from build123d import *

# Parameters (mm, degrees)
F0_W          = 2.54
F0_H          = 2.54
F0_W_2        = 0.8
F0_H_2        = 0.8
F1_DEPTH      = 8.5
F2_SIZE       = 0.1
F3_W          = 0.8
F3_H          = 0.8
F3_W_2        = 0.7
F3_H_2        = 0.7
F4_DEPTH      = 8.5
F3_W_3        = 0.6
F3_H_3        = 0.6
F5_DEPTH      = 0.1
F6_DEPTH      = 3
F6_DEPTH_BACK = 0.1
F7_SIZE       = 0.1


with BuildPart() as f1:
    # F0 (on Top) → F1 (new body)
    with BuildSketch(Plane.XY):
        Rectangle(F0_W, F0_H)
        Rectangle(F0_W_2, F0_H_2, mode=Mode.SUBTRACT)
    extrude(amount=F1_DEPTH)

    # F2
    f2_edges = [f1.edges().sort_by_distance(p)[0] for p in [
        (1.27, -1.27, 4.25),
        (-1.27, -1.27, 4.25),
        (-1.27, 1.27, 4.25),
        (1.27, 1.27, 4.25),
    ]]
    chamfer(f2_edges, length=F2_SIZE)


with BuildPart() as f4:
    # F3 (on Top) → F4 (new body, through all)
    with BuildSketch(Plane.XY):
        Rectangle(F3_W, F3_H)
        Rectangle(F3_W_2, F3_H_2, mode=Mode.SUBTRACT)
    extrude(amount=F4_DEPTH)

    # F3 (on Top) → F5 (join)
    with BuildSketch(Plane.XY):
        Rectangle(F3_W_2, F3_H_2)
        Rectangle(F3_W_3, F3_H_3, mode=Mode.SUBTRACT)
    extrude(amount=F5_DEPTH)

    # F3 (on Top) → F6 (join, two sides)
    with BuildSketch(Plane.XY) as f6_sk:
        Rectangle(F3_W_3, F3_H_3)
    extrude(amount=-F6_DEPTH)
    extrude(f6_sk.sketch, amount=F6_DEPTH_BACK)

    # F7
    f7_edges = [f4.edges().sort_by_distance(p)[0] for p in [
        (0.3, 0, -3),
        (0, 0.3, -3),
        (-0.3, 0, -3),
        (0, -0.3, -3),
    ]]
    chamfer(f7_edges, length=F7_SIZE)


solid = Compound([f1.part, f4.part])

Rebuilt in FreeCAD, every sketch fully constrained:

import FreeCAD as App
import Part
import Sketcher

V = App.Vector


def edges_at(feature, points):
    """Names of the edges that pass closest to the given points."""
    edges = feature.Shape.Edges
    near = lambda p: min(range(len(edges)), key=lambda i: edges[i].distToShape(Part.Vertex(*p))[0])
    return sorted({f"Edge{near(p) + 1}" for p in points})

doc = App.newDocument("Part")
body = doc.addObject("PartDesign::Body", "Body")

# Sketch on XY plane
sketch1 = doc.addObject("Sketcher::SketchObject", "Sketch")
body.addObject(sketch1)
sketch1.AttachmentSupport = (doc.XY_Plane, [""])
sketch1.MapMode = "FlatFace"
sketch1.addGeometry(Part.LineSegment(V(-1.3, 1.3, 0), V(-1.3, -1.3, 0)), False)
sketch1.addGeometry(Part.LineSegment(V(-1.3, -1.3, 0), V(1.3, -1.3, 0)), False)
sketch1.addGeometry(Part.LineSegment(V(1.3, -1.3, 0), V(1.3, 1.3, 0)), False)
sketch1.addGeometry(Part.LineSegment(V(1.3, 1.3, 0), V(-1.3, 1.3, 0)), False)
sketch1.addGeometry(Part.LineSegment(V(0.4, -0.4, 0), V(-0.4, -0.4, 0)), False)
sketch1.addGeometry(Part.LineSegment(V(-0.4, -0.4, 0), V(-0.4, 0.4, 0)), False)
sketch1.addGeometry(Part.LineSegment(V(-0.4, 0.4, 0), V(0.4, 0.4, 0)), False)
sketch1.addGeometry(Part.LineSegment(V(0.4, 0.4, 0), V(0.4, -0.4, 0)), False)
sketch1.addConstraint(Sketcher.Constraint("Coincident", 0, 2, 1, 1))
sketch1.addConstraint(Sketcher.Constraint("Coincident", 1, 2, 2, 1))
sketch1.addConstraint(Sketcher.Constraint("Coincident", 2, 2, 3, 1))
sketch1.addConstraint(Sketcher.Constraint("Coincident", 3, 2, 0, 1))
sketch1.addConstraint(Sketcher.Constraint("Coincident", 4, 2, 5, 1))
sketch1.addConstraint(Sketcher.Constraint("Coincident", 5, 2, 6, 1))
sketch1.addConstraint(Sketcher.Constraint("Coincident", 6, 2, 7, 1))
sketch1.addConstraint(Sketcher.Constraint("Coincident", 7, 2, 4, 1))
sketch1.addConstraint(Sketcher.Constraint("Vertical", 0))
sketch1.addConstraint(Sketcher.Constraint("Horizontal", 1))
sketch1.addConstraint(Sketcher.Constraint("Vertical", 2))
sketch1.addConstraint(Sketcher.Constraint("Horizontal", 3))
sketch1.addConstraint(Sketcher.Constraint("Horizontal", 4))
sketch1.addConstraint(Sketcher.Constraint("Vertical", 5))
sketch1.addConstraint(Sketcher.Constraint("Horizontal", 6))
sketch1.addConstraint(Sketcher.Constraint("Vertical", 7))
sketch1.addConstraint(Sketcher.Constraint("Symmetric", 0, 2, 2, 2, -1, 1))
sketch1.addConstraint(Sketcher.Constraint("Symmetric", 4, 2, 6, 2, -1, 1))
sketch1.addConstraint(Sketcher.Constraint("Equal", 3, 0))
sketch1.addConstraint(Sketcher.Constraint("Equal", 6, 5))
sketch1.addConstraint(Sketcher.Constraint("DistanceX", 4, 2, 4, 1, 0.8))
sketch1.addConstraint(Sketcher.Constraint("DistanceX", 1, 1, 1, 2, 2.54))
pad1 = doc.addObject("PartDesign::Pad", "Pad")
body.addObject(pad1)
pad1.Profile = sketch1
pad1.Length = 8.5
doc.recompute()

chamfer = doc.addObject("PartDesign::Chamfer", "Chamfer")
body.addObject(chamfer)
chamfer.Base = (pad1, edges_at(pad1, [
    (1.27, -1.27, 4.25),
    (-1.27, -1.27, 4.25),
    (-1.27, 1.27, 4.25),
    (1.27, 1.27, 4.25),
]))
chamfer.Size = 0.1
body2 = doc.addObject("PartDesign::Body", "Body001")

# Sketch on XY plane
sketch2 = doc.addObject("Sketcher::SketchObject", "Sketch001")
body2.addObject(sketch2)
sketch2.AttachmentSupport = (doc.getObject("XY_Plane001"), [""])
sketch2.MapMode = "FlatFace"
sketch2.addGeometry(Part.LineSegment(V(-0.4, 0.4, 0), V(-0.4, -0.4, 0)), False)
sketch2.addGeometry(Part.LineSegment(V(-0.4, -0.4, 0), V(0.4, -0.4, 0)), False)
sketch2.addGeometry(Part.LineSegment(V(0.4, -0.4, 0), V(0.4, 0.4, 0)), False)
sketch2.addGeometry(Part.LineSegment(V(0.4, 0.4, 0), V(-0.4, 0.4, 0)), False)
sketch2.addGeometry(Part.LineSegment(V(0.3, -0.3, 0), V(-0.3, -0.3, 0)), False)
sketch2.addGeometry(Part.LineSegment(V(-0.3, -0.3, 0), V(-0.3, 0.3, 0)), False)
sketch2.addGeometry(Part.LineSegment(V(-0.3, 0.3, 0), V(0.3, 0.3, 0)), False)
sketch2.addGeometry(Part.LineSegment(V(0.3, 0.3, 0), V(0.3, -0.3, 0)), False)
sketch2.addConstraint(Sketcher.Constraint("Coincident", 0, 2, 1, 1))
sketch2.addConstraint(Sketcher.Constraint("Coincident", 1, 2, 2, 1))
sketch2.addConstraint(Sketcher.Constraint("Coincident", 2, 2, 3, 1))
sketch2.addConstraint(Sketcher.Constraint("Coincident", 3, 2, 0, 1))
sketch2.addConstraint(Sketcher.Constraint("Coincident", 4, 2, 5, 1))
sketch2.addConstraint(Sketcher.Constraint("Coincident", 5, 2, 6, 1))
sketch2.addConstraint(Sketcher.Constraint("Coincident", 6, 2, 7, 1))
sketch2.addConstraint(Sketcher.Constraint("Coincident", 7, 2, 4, 1))
sketch2.addConstraint(Sketcher.Constraint("Vertical", 0))
sketch2.addConstraint(Sketcher.Constraint("Horizontal", 1))
sketch2.addConstraint(Sketcher.Constraint("Vertical", 2))
sketch2.addConstraint(Sketcher.Constraint("Horizontal", 3))
sketch2.addConstraint(Sketcher.Constraint("Horizontal", 4))
sketch2.addConstraint(Sketcher.Constraint("Vertical", 5))
sketch2.addConstraint(Sketcher.Constraint("Horizontal", 6))
sketch2.addConstraint(Sketcher.Constraint("Vertical", 7))
sketch2.addConstraint(Sketcher.Constraint("Symmetric", 0, 2, 2, 2, -1, 1))
sketch2.addConstraint(Sketcher.Constraint("Symmetric", 4, 2, 6, 2, -1, 1))
sketch2.addConstraint(Sketcher.Constraint("Equal", 3, 0))
sketch2.addConstraint(Sketcher.Constraint("Equal", 6, 5))
sketch2.addConstraint(Sketcher.Constraint("DistanceX", 1, 1, 1, 2, 0.8))
sketch2.addConstraint(Sketcher.Constraint("DistanceX", 4, 2, 4, 1, 0.7))
pad2 = doc.addObject("PartDesign::Pad", "Pad001")
body2.addObject(pad2)
pad2.Profile = sketch2
pad2.Length = 8.5

# Sketch on XY plane
sketch3 = doc.addObject("Sketcher::SketchObject", "Sketch002")
body2.addObject(sketch3)
sketch3.AttachmentSupport = (doc.getObject("XY_Plane001"), [""])
sketch3.MapMode = "FlatFace"
sketch3.addGeometry(Part.LineSegment(V(-0.3, 0.3, 0), V(-0.3, -0.3, 0)), False)
sketch3.addGeometry(Part.LineSegment(V(-0.3, -0.3, 0), V(0.3, -0.3, 0)), False)
sketch3.addGeometry(Part.LineSegment(V(0.3, -0.3, 0), V(0.3, 0.3, 0)), False)
sketch3.addGeometry(Part.LineSegment(V(0.3, 0.3, 0), V(-0.3, 0.3, 0)), False)
sketch3.addGeometry(Part.LineSegment(V(0.3, -0.3, 0), V(-0.3, -0.3, 0)), False)
sketch3.addGeometry(Part.LineSegment(V(-0.3, -0.3, 0), V(-0.3, 0.3, 0)), False)
sketch3.addGeometry(Part.LineSegment(V(-0.3, 0.3, 0), V(0.3, 0.3, 0)), False)
sketch3.addGeometry(Part.LineSegment(V(0.3, 0.3, 0), V(0.3, -0.3, 0)), False)
sketch3.addConstraint(Sketcher.Constraint("Coincident", 0, 2, 1, 1))
sketch3.addConstraint(Sketcher.Constraint("Coincident", 1, 2, 2, 1))
sketch3.addConstraint(Sketcher.Constraint("Coincident", 2, 2, 3, 1))
sketch3.addConstraint(Sketcher.Constraint("Coincident", 3, 2, 0, 1))
sketch3.addConstraint(Sketcher.Constraint("Coincident", 4, 2, 5, 1))
sketch3.addConstraint(Sketcher.Constraint("Coincident", 5, 2, 6, 1))
sketch3.addConstraint(Sketcher.Constraint("Coincident", 6, 2, 7, 1))
sketch3.addConstraint(Sketcher.Constraint("Coincident", 7, 2, 4, 1))
sketch3.addConstraint(Sketcher.Constraint("Vertical", 0))
sketch3.addConstraint(Sketcher.Constraint("Horizontal", 1))
sketch3.addConstraint(Sketcher.Constraint("Vertical", 2))
sketch3.addConstraint(Sketcher.Constraint("Horizontal", 3))
sketch3.addConstraint(Sketcher.Constraint("Horizontal", 4))
sketch3.addConstraint(Sketcher.Constraint("Vertical", 5))
sketch3.addConstraint(Sketcher.Constraint("Horizontal", 6))
sketch3.addConstraint(Sketcher.Constraint("Vertical", 7))
sketch3.addConstraint(Sketcher.Constraint("Symmetric", 0, 2, 2, 2, -1, 1))
sketch3.addConstraint(Sketcher.Constraint("Symmetric", 4, 2, 6, 2, -1, 1))
sketch3.addConstraint(Sketcher.Constraint("Equal", 3, 0))
sketch3.addConstraint(Sketcher.Constraint("Equal", 6, 5))
sketch3.addConstraint(Sketcher.Constraint("DistanceX", 1, 1, 1, 2, 0.7))
sketch3.addConstraint(Sketcher.Constraint("DistanceX", 4, 2, 4, 1, 0.6))
pad3 = doc.addObject("PartDesign::Pad", "Pad002")
body2.addObject(pad3)
pad3.Profile = sketch3
pad3.Length = 0.1

# Sketch on XY plane
sketch4 = doc.addObject("Sketcher::SketchObject", "Sketch003")
body2.addObject(sketch4)
sketch4.AttachmentSupport = (doc.getObject("XY_Plane001"), [""])
sketch4.MapMode = "FlatFace"
sketch4.addGeometry(Part.LineSegment(V(-0.3, 0.3, 0), V(-0.3, -0.3, 0)), False)
sketch4.addGeometry(Part.LineSegment(V(-0.3, -0.3, 0), V(0.3, -0.3, 0)), False)
sketch4.addGeometry(Part.LineSegment(V(0.3, -0.3, 0), V(0.3, 0.3, 0)), False)
sketch4.addGeometry(Part.LineSegment(V(0.3, 0.3, 0), V(-0.3, 0.3, 0)), False)
sketch4.addConstraint(Sketcher.Constraint("Coincident", 0, 2, 1, 1))
sketch4.addConstraint(Sketcher.Constraint("Coincident", 1, 2, 2, 1))
sketch4.addConstraint(Sketcher.Constraint("Coincident", 2, 2, 3, 1))
sketch4.addConstraint(Sketcher.Constraint("Coincident", 3, 2, 0, 1))
sketch4.addConstraint(Sketcher.Constraint("Vertical", 0))
sketch4.addConstraint(Sketcher.Constraint("Horizontal", 1))
sketch4.addConstraint(Sketcher.Constraint("Vertical", 2))
sketch4.addConstraint(Sketcher.Constraint("Horizontal", 3))
sketch4.addConstraint(Sketcher.Constraint("Symmetric", 0, 2, 2, 2, -1, 1))
sketch4.addConstraint(Sketcher.Constraint("Equal", 3, 0))
sketch4.addConstraint(Sketcher.Constraint("DistanceX", 1, 1, 1, 2, 0.6))
pad4 = doc.addObject("PartDesign::Pad", "Pad003")
body2.addObject(pad4)
pad4.Profile = sketch4
pad4.Type = "TwoLengths"
pad4.Length = 3
pad4.Length2 = 0.1
pad4.Reversed = True
doc.recompute()

chamfer2 = doc.addObject("PartDesign::Chamfer", "Chamfer001")
body2.addObject(chamfer2)
chamfer2.Base = (pad4, edges_at(pad4, [
    (0.3, 0, -3),
    (0, 0.3, -3),
    (-0.3, 0, -3),
    (0, -0.3, -3),
]))
chamfer2.Size = 0.1

doc.recompute()
